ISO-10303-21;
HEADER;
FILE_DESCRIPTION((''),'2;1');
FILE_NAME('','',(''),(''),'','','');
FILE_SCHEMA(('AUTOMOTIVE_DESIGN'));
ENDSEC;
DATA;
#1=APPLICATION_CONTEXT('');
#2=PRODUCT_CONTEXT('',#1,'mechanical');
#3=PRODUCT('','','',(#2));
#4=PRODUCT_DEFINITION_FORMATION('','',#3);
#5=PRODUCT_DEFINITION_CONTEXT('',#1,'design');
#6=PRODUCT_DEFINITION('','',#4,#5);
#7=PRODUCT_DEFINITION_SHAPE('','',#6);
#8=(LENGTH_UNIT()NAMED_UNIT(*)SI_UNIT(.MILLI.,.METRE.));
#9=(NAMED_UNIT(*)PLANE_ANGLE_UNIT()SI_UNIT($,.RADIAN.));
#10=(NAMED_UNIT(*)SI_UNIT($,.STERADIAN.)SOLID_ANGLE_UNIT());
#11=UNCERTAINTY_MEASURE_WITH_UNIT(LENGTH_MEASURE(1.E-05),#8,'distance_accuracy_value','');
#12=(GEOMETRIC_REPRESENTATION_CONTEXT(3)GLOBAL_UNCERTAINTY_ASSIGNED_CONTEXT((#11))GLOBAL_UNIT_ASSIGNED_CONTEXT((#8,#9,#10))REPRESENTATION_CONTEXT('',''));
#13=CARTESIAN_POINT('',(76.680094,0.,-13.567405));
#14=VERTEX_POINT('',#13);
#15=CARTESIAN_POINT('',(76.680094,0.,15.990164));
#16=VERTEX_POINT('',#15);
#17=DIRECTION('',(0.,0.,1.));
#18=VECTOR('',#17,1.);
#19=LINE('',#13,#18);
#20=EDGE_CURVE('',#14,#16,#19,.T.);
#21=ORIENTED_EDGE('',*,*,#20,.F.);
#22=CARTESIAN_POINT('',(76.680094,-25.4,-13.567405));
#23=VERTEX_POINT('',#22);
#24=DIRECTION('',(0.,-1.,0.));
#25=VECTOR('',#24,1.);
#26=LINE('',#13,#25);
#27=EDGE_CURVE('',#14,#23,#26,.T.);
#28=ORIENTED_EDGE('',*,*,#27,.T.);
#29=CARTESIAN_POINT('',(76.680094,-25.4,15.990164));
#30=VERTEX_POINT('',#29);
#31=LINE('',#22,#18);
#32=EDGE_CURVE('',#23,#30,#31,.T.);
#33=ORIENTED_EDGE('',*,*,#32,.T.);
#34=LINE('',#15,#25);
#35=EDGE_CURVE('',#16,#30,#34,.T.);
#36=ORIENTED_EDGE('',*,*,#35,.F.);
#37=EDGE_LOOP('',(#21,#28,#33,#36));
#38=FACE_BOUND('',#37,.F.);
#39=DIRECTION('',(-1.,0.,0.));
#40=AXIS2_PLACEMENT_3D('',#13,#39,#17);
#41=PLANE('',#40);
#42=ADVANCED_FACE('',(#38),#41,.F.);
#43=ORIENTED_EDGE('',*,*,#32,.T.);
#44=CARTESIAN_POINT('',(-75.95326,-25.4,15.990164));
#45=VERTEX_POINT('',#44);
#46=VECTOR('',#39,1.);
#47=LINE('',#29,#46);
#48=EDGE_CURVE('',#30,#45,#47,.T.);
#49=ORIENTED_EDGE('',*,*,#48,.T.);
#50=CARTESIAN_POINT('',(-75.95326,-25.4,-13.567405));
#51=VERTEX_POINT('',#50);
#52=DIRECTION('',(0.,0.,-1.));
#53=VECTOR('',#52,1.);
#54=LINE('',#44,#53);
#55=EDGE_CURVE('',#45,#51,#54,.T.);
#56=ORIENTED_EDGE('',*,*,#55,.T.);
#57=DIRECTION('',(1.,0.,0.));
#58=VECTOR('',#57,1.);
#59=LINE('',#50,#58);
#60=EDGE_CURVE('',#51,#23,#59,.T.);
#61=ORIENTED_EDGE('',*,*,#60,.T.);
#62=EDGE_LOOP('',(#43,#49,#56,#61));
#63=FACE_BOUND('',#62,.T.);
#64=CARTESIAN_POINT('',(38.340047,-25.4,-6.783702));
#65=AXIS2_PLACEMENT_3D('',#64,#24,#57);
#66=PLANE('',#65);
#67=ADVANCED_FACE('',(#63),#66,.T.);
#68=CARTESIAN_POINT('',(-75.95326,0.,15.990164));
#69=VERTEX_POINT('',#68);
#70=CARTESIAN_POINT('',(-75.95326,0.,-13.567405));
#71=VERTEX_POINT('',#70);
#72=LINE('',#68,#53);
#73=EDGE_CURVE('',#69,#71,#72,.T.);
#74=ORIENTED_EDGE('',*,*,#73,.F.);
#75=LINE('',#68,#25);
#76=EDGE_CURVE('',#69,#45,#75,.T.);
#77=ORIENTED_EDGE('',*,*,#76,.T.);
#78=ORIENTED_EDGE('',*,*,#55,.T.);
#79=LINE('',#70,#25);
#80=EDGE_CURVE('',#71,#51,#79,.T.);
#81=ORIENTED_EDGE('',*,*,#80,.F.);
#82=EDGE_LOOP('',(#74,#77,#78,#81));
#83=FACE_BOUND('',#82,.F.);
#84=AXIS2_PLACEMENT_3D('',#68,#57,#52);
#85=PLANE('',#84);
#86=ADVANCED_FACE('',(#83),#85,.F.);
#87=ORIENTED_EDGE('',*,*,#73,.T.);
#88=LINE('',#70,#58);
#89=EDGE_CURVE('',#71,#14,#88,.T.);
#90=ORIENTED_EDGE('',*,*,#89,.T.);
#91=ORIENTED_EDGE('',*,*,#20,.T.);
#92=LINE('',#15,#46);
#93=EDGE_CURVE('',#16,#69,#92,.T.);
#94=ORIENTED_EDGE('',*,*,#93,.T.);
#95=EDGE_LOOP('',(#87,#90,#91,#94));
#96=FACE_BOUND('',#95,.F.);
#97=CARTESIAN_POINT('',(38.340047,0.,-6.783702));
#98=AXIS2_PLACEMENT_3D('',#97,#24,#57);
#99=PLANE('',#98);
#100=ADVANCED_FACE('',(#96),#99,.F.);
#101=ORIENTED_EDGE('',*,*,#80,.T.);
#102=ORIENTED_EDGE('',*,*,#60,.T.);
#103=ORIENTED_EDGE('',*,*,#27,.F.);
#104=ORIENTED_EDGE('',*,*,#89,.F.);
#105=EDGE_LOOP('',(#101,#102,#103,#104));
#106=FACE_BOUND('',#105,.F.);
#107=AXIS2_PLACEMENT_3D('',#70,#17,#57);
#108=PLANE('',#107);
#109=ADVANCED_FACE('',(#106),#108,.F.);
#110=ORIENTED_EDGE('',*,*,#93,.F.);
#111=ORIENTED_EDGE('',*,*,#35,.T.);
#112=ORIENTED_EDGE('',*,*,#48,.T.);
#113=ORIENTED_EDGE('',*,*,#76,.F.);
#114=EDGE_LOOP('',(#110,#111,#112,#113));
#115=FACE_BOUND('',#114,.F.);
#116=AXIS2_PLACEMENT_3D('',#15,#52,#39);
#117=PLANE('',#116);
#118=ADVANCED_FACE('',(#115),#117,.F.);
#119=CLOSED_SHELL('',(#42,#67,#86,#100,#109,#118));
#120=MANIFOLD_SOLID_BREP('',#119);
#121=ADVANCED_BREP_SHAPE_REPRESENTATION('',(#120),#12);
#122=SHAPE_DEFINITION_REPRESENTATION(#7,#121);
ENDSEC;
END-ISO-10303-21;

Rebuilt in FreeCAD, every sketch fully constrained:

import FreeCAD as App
import Part
import Sketcher

V = App.Vector

doc = App.newDocument("Part")
params = doc.addObject("Spreadsheet::Sheet", "Params")
for row, (alias, value) in enumerate([
    ("pad1_length", "1 in"),
], start=1):
    params.set(f"A{row}", alias)
    params.set(f"B{row}", "=" + value)
    params.setAlias(f"B{row}", alias)

body = doc.addObject("PartDesign::Body", "Body")

sketch1 = body.newObject("Sketcher::SketchObject", "Sketch")
sketch1.AttachmentSupport = (doc.getObject("XZ_Plane"), [""])
sketch1.MapMode = "FlatFace"
sketch1.addGeometry([
    Part.LineSegment(V(-76, -14, 0), V(77, -14, 0)),
    Part.LineSegment(V(77, -14, 0), V(77, 16, 0)),
    Part.LineSegment(V(77, 16, 0), V(-76, 16, 0)),
    Part.LineSegment(V(-76, 16, 0), V(-76, -14, 0)),
], False)
sketch1.addConstraint([
    Sketcher.Constraint("Coincident", 0, 2, 1, 1),
    Sketcher.Constraint("Coincident", 1, 2, 2, 1),
    Sketcher.Constraint("Coincident", 2, 2, 3, 1),
    Sketcher.Constraint("Coincident", 3, 2, 0, 1),
    Sketcher.Constraint("Horizontal", 0),
    Sketcher.Constraint("Vertical", 1),
    Sketcher.Constraint("Horizontal", 2),
    Sketcher.Constraint("Vertical", 3),
    Sketcher.Constraint("DistanceY", 1, 1, 1, 2, 29.557569),
    Sketcher.Constraint("DistanceX", 0, 1, 0, 2, 152.633354),
    Sketcher.Constraint("DistanceX", 2, 2, -1, 1, 75.95326),
    Sketcher.Constraint("DistanceY", 0, 2, -1, 1, 13.567405),
])
pad1 = body.newObject("PartDesign::Pad", "Pad")
pad1.Profile = sketch1
pad1.setExpression("Length", "Params.pad1_length")

doc.recompute()
